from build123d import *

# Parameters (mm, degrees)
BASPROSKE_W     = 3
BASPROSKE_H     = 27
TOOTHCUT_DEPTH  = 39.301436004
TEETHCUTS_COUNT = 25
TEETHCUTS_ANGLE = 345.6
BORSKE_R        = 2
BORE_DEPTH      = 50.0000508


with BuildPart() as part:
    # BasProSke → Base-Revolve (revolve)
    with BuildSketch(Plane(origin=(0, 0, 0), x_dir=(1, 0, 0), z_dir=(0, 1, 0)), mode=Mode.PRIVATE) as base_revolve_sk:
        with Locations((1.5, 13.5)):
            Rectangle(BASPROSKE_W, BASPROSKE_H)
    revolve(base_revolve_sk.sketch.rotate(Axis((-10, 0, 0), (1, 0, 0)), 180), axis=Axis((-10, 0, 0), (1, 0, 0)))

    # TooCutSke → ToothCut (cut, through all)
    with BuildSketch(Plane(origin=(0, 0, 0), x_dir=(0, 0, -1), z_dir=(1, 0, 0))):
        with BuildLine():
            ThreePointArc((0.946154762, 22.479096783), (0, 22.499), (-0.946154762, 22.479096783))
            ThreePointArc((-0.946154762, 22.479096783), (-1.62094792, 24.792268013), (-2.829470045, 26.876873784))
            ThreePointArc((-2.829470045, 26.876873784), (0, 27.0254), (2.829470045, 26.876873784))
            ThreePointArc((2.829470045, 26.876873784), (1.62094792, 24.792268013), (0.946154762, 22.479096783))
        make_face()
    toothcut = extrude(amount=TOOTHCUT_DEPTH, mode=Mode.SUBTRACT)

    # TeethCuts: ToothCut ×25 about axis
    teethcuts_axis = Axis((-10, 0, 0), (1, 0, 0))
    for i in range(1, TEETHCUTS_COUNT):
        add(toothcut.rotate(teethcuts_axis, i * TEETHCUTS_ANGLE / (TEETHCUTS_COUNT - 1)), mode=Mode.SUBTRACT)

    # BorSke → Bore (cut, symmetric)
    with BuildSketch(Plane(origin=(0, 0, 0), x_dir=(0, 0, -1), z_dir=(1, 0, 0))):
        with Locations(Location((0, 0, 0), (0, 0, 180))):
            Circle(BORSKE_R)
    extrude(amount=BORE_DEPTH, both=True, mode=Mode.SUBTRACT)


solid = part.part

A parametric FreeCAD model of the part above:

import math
import FreeCAD as App
import Part
import Sketcher
Q = App.Units.Quantity


def add_polygon(sketch, points):
    """Adds a closed chain of lines whose ends are joined by coincident constraints."""
    first, n = sketch.GeometryCount, len(points)
    for a, b in zip(points, points[1:] + points[:1]):
        sketch.addGeometry(Part.LineSegment(App.Vector(*a, 0), App.Vector(*b, 0)), False)
    for i in range(n):
        sketch.addConstraint(Sketcher.Constraint("Coincident", first + i, 2, first + (i + 1) % n, 1))

doc = App.newDocument("Part")
body = doc.addObject("PartDesign::Body", "Body")

# Sketch on XZ plane
sketch1 = body.newObject("Sketcher::SketchObject", "Sketch")
sketch1.AttachmentSupport = (doc.getObject("XZ_Plane"), [""])
sketch1.MapMode = "FlatFace"
add_polygon(sketch1, [(0, -27), (0, 0), (3, 0), (3, -27)])  # lines 0-3
sketch1.addConstraint(Sketcher.Constraint("Vertical", 0))
sketch1.addConstraint(Sketcher.Constraint("Horizontal", 1))
sketch1.addConstraint(Sketcher.Constraint("Vertical", 2))
sketch1.addConstraint(Sketcher.Constraint("Horizontal", 3))
sketch1.addConstraint(Sketcher.Constraint("Coincident", 0, 2, -1, 1))
sketch1.addConstraint(Sketcher.Constraint("DistanceX", 1, 1, 1, 2, Q("3 mm")))
sketch1.addConstraint(Sketcher.Constraint("DistanceY", 0, 1, 0, 2, Q("27 mm")))
revolution = body.newObject("PartDesign::Revolution", "Revolution")
revolution.Profile = sketch1
revolution.ReferenceAxis = (sketch1, ["H_Axis"])
revolution.Angle = 360

# Sketch on YZ plane
sketch2 = body.newObject("Sketcher::SketchObject", "Sketch001")
sketch2.AttachmentSupport = (doc.getObject("YZ_Plane"), [""])
sketch2.MapMode = "FlatFace"
sketch2.addGeometry(Part.ArcOfCircle(Part.Circle(App.Vector(0, 0, 0), App.Vector(0, 0, 1), 22.5), math.radians(-2.41), math.radians(2.41)), False)
sketch2.addGeometry(Part.ArcOfCircle(Part.Circle(App.Vector(20.9, -10.8, 0), App.Vector(0, 0, 1), 10), math.radians(53), math.radians(81)), False)
sketch2.addGeometry(Part.ArcOfCircle(Part.Circle(App.Vector(0, 0, 0), App.Vector(0, 0, 1), 27), math.radians(-6.01), math.radians(6.01)), False)
sketch2.addGeometry(Part.ArcOfCircle(Part.Circle(App.Vector(20.9, 10.8, 0), App.Vector(0, 0, 1), 10), math.radians(-81), math.radians(-53)), False)
sketch2.addConstraint(Sketcher.Constraint("Coincident", 0, 1, 1, 2))
sketch2.addConstraint(Sketcher.Constraint("Coincident", 1, 1, 2, 1))
sketch2.addConstraint(Sketcher.Constraint("Coincident", 2, 2, 3, 2))
sketch2.addConstraint(Sketcher.Constraint("Coincident", 3, 1, 0, 2))
sketch2.addConstraint(Sketcher.Constraint("Coincident", 0, 3, -1, 1))
sketch2.addConstraint(Sketcher.Constraint("Coincident", 2, 3, -1, 1))
sketch2.addConstraint(Sketcher.Constraint("Equal", 1, 3))
sketch2.addConstraint(Sketcher.Constraint("Symmetric", 1, 3, 3, 3, -1))
sketch2.addConstraint(Sketcher.Constraint("Radius", 1, Q("10 mm")))
sketch2.addConstraint(Sketcher.Constraint("Radius", 0, Q("22.499 mm")))
sketch2.addConstraint(Sketcher.Constraint("Radius", 2, Q("27.0254 mm")))
sketch2.addConstraint(Sketcher.Constraint("DistanceX", -1, 1, 1, 3, Q("20.855629 mm")))
sketch2.addConstraint(Sketcher.Constraint("DistanceY", 1, 1, -1, 1, Q("2.82947 mm")))
pocket1 = body.newObject("PartDesign::Pocket", "Pocket")
pocket1.Profile = sketch2
pocket1.Type = "ThroughAll"
pocket1.Reversed = True
doc.recompute()

polarpattern = body.newObject("PartDesign::PolarPattern", "PolarPattern")
polarpattern.Originals = [pocket1]
polarpattern.Axis = (doc.getObject("X_Axis"), [""])
polarpattern.Angle = 360
polarpattern.Occurrences = 25
body.Tip = polarpattern

# Sketch on YZ plane
sketch3 = body.newObject("Sketcher::SketchObject", "Sketch002")
sketch3.AttachmentSupport = (doc.getObject("YZ_Plane"), [""])
sketch3.MapMode = "FlatFace"
sketch3.addGeometry(Part.Circle(App.Vector(0, 0, 0), App.Vector(0, 0, 1), 2), False)
sketch3.addConstraint(Sketcher.Constraint("Coincident", 0, 3, -1, 1))
sketch3.addConstraint(Sketcher.Constraint("Diameter", 0, Q("4 mm")))
pocket2 = body.newObject("PartDesign::Pocket", "Pocket001")
pocket2.Profile = sketch3
pocket2.Length = 100.000102
pocket2.Midplane = True

doc.recompute()
